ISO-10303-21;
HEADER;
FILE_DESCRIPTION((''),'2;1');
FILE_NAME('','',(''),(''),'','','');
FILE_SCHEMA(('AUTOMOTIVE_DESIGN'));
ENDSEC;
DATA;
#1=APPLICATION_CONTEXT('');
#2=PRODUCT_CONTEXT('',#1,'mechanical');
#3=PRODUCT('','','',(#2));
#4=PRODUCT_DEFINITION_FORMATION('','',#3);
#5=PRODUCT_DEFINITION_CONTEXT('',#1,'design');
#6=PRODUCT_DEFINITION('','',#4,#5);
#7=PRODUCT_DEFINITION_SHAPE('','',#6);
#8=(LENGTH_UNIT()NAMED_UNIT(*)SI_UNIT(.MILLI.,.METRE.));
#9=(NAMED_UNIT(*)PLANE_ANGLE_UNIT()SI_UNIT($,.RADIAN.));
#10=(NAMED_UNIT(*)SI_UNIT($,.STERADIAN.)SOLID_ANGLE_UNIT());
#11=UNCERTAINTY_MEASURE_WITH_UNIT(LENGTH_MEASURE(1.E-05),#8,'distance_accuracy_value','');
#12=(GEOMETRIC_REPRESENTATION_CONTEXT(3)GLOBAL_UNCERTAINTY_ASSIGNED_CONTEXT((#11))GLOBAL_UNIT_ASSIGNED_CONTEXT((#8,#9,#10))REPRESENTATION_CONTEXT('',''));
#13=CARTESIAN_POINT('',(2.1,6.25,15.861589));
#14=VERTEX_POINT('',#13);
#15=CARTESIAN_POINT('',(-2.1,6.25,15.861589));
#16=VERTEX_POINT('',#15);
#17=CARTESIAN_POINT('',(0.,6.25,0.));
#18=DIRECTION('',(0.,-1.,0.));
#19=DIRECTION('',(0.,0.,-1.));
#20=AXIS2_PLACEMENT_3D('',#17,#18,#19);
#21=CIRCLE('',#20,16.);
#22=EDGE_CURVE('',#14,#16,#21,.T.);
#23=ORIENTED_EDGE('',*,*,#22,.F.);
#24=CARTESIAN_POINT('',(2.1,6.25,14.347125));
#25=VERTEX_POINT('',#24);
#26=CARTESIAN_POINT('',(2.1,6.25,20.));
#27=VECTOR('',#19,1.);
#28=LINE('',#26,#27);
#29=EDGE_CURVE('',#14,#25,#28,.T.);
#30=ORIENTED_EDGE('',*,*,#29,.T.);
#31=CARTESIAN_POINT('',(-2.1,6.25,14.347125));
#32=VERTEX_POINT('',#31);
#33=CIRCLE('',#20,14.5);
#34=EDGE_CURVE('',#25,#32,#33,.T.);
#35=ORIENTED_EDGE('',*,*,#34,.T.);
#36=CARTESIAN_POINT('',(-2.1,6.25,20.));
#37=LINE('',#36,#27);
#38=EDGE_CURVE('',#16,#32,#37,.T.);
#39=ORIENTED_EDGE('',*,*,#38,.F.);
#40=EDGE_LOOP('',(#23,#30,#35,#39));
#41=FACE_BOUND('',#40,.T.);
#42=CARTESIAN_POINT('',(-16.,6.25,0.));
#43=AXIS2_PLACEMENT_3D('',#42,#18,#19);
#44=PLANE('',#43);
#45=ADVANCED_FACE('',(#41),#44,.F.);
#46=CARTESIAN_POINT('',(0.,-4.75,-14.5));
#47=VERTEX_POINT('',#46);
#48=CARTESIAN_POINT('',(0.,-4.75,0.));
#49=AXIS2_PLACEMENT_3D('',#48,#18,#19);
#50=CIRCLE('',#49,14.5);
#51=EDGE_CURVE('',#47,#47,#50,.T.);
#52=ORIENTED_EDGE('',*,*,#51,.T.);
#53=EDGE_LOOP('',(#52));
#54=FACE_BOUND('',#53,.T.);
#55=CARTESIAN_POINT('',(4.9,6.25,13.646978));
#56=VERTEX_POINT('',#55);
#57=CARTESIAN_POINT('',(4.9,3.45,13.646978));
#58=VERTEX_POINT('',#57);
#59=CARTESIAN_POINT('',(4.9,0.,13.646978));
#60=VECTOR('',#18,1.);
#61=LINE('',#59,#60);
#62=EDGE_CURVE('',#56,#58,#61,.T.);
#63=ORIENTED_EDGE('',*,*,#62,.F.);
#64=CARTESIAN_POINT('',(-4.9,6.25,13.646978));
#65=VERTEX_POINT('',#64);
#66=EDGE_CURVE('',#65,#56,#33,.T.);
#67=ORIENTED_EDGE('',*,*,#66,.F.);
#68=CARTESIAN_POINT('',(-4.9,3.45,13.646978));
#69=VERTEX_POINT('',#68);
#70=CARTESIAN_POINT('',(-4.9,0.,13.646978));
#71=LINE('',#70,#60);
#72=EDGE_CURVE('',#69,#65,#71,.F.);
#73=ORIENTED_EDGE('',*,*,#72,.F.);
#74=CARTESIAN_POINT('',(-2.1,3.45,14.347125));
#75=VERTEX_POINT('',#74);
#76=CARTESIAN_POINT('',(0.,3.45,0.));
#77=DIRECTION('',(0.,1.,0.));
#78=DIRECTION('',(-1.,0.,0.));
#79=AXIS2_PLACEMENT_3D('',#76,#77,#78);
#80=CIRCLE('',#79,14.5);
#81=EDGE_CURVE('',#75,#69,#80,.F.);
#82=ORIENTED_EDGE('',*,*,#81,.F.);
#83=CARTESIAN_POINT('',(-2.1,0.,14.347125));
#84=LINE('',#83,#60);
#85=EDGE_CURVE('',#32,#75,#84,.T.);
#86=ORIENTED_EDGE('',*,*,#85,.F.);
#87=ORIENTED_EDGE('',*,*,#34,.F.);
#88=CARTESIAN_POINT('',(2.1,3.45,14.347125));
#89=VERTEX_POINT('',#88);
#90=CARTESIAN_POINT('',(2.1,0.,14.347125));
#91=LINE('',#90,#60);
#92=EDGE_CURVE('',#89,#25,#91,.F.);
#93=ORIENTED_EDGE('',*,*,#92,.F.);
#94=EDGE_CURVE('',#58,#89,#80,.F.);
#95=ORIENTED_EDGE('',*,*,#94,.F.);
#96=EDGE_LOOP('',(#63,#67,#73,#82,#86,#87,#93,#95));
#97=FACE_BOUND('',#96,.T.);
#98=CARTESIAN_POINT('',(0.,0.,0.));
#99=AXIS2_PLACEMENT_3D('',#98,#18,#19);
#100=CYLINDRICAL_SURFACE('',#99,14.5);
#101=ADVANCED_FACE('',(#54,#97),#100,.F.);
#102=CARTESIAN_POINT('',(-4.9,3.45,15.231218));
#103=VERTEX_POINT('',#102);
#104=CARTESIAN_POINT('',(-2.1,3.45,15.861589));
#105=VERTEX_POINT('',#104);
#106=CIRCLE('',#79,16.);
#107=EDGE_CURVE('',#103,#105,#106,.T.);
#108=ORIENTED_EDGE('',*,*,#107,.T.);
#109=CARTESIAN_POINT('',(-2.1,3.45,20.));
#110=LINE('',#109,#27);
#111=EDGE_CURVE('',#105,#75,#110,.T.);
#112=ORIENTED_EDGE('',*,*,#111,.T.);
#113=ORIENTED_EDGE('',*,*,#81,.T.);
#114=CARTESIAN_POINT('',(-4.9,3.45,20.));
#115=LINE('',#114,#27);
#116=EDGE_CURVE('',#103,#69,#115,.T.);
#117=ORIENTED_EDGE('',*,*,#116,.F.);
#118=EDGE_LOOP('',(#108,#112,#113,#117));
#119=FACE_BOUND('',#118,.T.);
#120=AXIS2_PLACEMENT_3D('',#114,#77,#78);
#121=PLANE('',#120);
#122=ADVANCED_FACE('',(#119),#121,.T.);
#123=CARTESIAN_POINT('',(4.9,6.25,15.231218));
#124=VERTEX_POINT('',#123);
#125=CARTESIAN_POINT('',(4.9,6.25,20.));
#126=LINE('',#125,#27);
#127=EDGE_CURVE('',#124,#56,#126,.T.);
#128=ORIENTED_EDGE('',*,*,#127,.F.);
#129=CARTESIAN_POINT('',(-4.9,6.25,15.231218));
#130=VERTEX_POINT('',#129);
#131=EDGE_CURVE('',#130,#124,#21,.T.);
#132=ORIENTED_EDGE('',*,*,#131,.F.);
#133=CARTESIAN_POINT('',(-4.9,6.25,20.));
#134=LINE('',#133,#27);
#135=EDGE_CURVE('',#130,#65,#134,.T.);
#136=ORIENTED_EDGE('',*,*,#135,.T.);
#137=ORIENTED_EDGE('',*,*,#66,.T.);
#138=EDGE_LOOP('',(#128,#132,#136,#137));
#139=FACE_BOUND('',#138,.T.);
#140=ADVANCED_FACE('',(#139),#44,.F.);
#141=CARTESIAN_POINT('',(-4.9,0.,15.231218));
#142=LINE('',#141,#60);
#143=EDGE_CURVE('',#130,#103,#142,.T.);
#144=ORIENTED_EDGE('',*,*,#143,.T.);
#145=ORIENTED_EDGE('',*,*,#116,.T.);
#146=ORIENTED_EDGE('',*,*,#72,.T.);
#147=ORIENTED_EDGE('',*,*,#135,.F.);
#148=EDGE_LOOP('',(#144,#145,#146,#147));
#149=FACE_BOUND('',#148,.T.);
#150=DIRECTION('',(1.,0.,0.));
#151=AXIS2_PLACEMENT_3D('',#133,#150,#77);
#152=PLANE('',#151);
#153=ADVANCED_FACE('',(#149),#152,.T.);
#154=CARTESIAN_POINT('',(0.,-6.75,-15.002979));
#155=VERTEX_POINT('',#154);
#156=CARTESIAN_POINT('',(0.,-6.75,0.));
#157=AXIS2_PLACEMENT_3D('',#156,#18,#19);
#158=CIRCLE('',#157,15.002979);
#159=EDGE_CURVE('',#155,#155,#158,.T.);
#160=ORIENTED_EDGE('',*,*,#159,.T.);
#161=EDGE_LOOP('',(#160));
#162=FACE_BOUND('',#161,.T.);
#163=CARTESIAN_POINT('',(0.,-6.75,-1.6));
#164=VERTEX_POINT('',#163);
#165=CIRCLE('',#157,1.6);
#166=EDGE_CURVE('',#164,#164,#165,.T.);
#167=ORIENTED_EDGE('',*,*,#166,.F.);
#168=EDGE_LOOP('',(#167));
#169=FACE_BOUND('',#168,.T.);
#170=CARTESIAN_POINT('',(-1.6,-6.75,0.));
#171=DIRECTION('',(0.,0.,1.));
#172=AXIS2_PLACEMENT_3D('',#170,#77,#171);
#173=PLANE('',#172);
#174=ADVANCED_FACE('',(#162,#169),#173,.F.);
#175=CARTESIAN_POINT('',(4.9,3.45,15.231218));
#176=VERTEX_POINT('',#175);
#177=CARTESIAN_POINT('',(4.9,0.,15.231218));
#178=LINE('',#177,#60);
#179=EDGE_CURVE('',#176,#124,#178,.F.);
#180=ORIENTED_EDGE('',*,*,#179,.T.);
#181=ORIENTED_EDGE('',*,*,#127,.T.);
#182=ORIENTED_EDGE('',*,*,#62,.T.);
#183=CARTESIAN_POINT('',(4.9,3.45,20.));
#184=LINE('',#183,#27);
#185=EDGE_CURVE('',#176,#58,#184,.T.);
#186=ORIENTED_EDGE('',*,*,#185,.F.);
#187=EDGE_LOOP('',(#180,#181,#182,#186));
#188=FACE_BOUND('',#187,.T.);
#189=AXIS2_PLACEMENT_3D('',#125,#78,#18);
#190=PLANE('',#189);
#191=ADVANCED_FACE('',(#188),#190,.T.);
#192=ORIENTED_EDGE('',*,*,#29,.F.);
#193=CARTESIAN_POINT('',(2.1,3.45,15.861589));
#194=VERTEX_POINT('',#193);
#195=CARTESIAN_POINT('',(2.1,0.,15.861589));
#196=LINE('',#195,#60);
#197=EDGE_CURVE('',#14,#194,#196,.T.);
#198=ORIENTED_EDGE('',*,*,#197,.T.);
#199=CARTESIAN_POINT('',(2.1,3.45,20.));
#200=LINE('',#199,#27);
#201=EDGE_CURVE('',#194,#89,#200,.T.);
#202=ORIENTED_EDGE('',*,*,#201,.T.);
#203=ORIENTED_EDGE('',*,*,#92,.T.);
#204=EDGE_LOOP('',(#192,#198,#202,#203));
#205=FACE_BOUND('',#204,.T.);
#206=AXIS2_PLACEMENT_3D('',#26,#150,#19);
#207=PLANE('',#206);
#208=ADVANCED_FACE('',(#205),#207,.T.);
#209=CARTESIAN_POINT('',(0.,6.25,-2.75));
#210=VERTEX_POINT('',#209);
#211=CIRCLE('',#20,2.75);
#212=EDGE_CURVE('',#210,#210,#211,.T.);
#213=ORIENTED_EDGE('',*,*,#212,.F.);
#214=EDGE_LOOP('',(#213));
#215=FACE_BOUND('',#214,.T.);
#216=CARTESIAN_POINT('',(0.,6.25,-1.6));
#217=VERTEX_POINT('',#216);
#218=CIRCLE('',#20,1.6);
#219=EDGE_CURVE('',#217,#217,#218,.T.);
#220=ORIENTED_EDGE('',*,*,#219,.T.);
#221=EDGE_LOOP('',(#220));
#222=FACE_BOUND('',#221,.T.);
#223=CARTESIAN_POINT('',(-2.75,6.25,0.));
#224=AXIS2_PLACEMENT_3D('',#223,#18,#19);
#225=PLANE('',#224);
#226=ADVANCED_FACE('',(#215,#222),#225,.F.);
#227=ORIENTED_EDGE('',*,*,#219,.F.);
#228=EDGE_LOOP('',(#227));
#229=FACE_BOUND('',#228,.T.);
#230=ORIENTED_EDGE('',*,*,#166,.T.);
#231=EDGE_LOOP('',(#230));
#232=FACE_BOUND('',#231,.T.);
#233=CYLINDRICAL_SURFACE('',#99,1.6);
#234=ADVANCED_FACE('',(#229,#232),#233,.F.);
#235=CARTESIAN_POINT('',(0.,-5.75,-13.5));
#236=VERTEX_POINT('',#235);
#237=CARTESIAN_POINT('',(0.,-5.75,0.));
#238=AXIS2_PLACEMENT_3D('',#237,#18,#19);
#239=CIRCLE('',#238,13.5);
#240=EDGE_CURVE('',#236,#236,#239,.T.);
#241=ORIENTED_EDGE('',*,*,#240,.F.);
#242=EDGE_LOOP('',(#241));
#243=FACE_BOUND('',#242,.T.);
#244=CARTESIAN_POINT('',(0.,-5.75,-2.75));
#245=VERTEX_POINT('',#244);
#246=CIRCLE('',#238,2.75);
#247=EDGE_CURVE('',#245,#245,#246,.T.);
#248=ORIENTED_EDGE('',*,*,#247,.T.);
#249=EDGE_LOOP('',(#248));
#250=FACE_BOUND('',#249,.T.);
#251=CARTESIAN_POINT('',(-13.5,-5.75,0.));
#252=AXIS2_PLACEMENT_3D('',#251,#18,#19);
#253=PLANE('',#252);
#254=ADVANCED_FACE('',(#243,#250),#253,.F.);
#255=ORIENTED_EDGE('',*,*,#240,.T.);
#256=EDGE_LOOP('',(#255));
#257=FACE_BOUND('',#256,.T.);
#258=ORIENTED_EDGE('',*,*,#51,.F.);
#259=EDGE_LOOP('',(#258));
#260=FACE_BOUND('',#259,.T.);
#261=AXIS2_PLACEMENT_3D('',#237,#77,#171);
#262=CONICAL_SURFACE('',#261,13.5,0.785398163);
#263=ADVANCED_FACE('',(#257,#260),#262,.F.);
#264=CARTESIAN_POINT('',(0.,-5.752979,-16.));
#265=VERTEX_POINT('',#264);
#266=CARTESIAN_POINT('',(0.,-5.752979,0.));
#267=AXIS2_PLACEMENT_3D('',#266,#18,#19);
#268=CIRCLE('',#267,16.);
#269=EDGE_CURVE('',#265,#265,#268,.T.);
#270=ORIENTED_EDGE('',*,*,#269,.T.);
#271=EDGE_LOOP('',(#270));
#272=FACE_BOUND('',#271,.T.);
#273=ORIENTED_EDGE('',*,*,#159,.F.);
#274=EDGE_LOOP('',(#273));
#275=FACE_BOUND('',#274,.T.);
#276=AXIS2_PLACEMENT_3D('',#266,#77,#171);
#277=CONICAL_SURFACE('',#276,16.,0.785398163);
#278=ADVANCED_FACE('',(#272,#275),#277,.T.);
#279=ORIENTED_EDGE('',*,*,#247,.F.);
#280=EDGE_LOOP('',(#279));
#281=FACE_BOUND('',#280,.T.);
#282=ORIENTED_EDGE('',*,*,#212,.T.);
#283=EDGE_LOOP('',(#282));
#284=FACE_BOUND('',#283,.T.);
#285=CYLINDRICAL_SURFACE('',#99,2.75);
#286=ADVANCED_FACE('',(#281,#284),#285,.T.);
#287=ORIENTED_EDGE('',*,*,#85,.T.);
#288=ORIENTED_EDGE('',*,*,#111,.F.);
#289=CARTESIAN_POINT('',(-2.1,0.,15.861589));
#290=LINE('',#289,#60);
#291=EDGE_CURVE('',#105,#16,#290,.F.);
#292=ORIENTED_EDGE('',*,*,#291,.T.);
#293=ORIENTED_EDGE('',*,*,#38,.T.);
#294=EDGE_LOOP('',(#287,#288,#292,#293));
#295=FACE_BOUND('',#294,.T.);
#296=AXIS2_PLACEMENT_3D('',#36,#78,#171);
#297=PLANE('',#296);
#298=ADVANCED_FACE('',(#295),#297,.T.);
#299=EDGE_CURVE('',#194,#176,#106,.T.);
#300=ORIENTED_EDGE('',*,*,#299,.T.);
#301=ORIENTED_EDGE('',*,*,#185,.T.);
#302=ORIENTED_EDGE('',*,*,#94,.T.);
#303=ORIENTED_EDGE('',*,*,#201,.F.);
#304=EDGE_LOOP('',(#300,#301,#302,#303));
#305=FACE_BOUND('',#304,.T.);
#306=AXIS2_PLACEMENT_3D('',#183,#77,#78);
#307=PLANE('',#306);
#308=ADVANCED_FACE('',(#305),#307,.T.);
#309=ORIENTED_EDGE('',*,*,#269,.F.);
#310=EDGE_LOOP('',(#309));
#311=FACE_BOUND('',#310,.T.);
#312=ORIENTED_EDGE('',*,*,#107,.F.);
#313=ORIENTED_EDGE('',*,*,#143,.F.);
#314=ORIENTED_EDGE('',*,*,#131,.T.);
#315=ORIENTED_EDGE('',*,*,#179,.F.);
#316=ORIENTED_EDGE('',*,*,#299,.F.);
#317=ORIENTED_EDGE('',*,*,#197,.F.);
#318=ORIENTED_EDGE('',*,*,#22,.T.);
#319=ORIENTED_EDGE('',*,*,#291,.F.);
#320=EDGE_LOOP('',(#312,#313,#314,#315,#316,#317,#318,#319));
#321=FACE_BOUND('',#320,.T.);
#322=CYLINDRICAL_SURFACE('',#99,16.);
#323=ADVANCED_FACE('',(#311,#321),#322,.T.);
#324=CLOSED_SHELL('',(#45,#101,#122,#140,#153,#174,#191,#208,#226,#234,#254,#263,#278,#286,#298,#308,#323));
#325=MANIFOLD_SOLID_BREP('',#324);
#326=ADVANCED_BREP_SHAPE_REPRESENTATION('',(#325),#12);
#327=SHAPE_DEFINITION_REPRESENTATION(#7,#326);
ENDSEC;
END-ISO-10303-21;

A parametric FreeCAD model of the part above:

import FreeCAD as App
import Part
import Sketcher
from FreeCAD import Vector
Q = App.Units.Quantity


def add_polygon(sketch, points):
    """Adds a closed chain of lines whose ends are joined by coincident constraints."""
    first, n = sketch.GeometryCount, len(points)
    for a, b in zip(points, points[1:] + points[:1]):
        sketch.addGeometry(Part.LineSegment(App.Vector(*a, 0), App.Vector(*b, 0)), False)
    for i in range(n):
        sketch.addConstraint(Sketcher.Constraint("Coincident", first + i, 2, first + (i + 1) % n, 1))

doc = App.newDocument("Part")
body = doc.addObject("PartDesign::Body", "Body")

sketch1 = doc.addObject("Sketcher::SketchObject", "Sketch")
body.addObject(sketch1)
sketch1.AttachmentSupport = (doc.XY_Plane, [""])
sketch1.MapMode = "FlatFace"
add_polygon(sketch1, [(-14.5, -4.8), (-14.5, 6.2), (-16, 6.2), (-16, -5.8), (-15, -6.8), (-1.6, -6.8), (-1.6, 6.2), (-2.8, 6.2), (-2.8, -5.8), (-13.5, -5.8)])
sketch1.addConstraint([
    Sketcher.Constraint("Vertical", 0),
    Sketcher.Constraint("Horizontal", 1),
    Sketcher.Constraint("Vertical", 2),
    Sketcher.Constraint("Horizontal", 4),
    Sketcher.Constraint("Vertical", 5),
    Sketcher.Constraint("Horizontal", 6),
    Sketcher.Constraint("Vertical", 7),
    Sketcher.Constraint("Horizontal", 8),
    Sketcher.Constraint("Parallel", 3, 9),
    Sketcher.Constraint("Horizontal", 1, 2, 5, 2),
    Sketcher.Constraint("DistanceY", 0, 1, 0, 2, Q("11 mm")),
    Sketcher.Constraint("DistanceY", 5, 1, 5, 2, Q("13 mm")),
    Sketcher.Constraint("DistanceY", 7, 2, 7, 1, Q("12 mm")),
    Sketcher.Constraint("Angle", 3, Q("-45 deg")),
    Sketcher.Constraint("DistanceX", 1, 2, 1, 1, Q("1.5 mm")),
    Sketcher.Constraint("DistanceX", 1, 2, -1, 1, Q("16 mm")),
    Sketcher.Constraint("DistanceX", 6, 2, 6, 1, Q("1.15 mm")),
    Sketcher.Constraint("DistanceX", 8, 2, 8, 1, Q("10.75 mm")),
    Sketcher.Constraint("Distance", 3, Q("1.41 mm")),
    Sketcher.Constraint("DistanceY", -1, 1, 0, 2, Q("6.25 mm")),
])
revolution = doc.addObject("PartDesign::Revolution", "Revolution")
body.addObject(revolution)
revolution.Profile = sketch1
revolution.ReferenceAxis = (sketch1, ["V_Axis"])
revolution.Angle = 360

sketch2 = doc.addObject("Sketcher::SketchObject", "Sketch001")
body.addObject(sketch2)
sketch2.AttachmentSupport = (doc.XY_Plane, [""])
sketch2.MapMode = "FlatFace"
sketch2.AttachmentOffset = App.Placement(Vector(0, 0, 10), App.Rotation())
add_polygon(sketch2, [(-4.9, 6.2), (-4.9, 3.5), (-2.1, 3.5), (-2.1, 6.2)])
add_polygon(sketch2, [(2.1, 6.2), (2.1, 3.5), (4.9, 3.5), (4.9, 6.2)])
sketch2.addConstraint([
    Sketcher.Constraint("Vertical", 0),
    Sketcher.Constraint("Horizontal", 1),
    Sketcher.Constraint("Vertical", 2),
    Sketcher.Constraint("Horizontal", 3),
    Sketcher.Constraint("Vertical", 4),
    Sketcher.Constraint("Horizontal", 5),
    Sketcher.Constraint("Vertical", 6),
    Sketcher.Constraint("Horizontal", 7),
    Sketcher.Constraint("Symmetric", 1, 2, 4, 2, -2),
    Sketcher.Constraint("Symmetric", 3, 2, 6, 2, -2),
    Sketcher.Constraint("Equal", 7, 0),
    Sketcher.Constraint("DistanceX", 1, 1, 1, 2, Q("2.8 mm")),
    Sketcher.Constraint("DistanceX", 0, 2, 4, 2, Q("7 mm")),
    Sketcher.Constraint("DistanceY", -1, 1, 0, 2, Q("3.45 mm")),
])
pocket1 = doc.addObject("PartDesign::Pocket", "Pocket")
body.addObject(pocket1)
pocket1.Profile = sketch2
pocket1.Length = 10
pocket1.Reversed = True

doc.recompute()
